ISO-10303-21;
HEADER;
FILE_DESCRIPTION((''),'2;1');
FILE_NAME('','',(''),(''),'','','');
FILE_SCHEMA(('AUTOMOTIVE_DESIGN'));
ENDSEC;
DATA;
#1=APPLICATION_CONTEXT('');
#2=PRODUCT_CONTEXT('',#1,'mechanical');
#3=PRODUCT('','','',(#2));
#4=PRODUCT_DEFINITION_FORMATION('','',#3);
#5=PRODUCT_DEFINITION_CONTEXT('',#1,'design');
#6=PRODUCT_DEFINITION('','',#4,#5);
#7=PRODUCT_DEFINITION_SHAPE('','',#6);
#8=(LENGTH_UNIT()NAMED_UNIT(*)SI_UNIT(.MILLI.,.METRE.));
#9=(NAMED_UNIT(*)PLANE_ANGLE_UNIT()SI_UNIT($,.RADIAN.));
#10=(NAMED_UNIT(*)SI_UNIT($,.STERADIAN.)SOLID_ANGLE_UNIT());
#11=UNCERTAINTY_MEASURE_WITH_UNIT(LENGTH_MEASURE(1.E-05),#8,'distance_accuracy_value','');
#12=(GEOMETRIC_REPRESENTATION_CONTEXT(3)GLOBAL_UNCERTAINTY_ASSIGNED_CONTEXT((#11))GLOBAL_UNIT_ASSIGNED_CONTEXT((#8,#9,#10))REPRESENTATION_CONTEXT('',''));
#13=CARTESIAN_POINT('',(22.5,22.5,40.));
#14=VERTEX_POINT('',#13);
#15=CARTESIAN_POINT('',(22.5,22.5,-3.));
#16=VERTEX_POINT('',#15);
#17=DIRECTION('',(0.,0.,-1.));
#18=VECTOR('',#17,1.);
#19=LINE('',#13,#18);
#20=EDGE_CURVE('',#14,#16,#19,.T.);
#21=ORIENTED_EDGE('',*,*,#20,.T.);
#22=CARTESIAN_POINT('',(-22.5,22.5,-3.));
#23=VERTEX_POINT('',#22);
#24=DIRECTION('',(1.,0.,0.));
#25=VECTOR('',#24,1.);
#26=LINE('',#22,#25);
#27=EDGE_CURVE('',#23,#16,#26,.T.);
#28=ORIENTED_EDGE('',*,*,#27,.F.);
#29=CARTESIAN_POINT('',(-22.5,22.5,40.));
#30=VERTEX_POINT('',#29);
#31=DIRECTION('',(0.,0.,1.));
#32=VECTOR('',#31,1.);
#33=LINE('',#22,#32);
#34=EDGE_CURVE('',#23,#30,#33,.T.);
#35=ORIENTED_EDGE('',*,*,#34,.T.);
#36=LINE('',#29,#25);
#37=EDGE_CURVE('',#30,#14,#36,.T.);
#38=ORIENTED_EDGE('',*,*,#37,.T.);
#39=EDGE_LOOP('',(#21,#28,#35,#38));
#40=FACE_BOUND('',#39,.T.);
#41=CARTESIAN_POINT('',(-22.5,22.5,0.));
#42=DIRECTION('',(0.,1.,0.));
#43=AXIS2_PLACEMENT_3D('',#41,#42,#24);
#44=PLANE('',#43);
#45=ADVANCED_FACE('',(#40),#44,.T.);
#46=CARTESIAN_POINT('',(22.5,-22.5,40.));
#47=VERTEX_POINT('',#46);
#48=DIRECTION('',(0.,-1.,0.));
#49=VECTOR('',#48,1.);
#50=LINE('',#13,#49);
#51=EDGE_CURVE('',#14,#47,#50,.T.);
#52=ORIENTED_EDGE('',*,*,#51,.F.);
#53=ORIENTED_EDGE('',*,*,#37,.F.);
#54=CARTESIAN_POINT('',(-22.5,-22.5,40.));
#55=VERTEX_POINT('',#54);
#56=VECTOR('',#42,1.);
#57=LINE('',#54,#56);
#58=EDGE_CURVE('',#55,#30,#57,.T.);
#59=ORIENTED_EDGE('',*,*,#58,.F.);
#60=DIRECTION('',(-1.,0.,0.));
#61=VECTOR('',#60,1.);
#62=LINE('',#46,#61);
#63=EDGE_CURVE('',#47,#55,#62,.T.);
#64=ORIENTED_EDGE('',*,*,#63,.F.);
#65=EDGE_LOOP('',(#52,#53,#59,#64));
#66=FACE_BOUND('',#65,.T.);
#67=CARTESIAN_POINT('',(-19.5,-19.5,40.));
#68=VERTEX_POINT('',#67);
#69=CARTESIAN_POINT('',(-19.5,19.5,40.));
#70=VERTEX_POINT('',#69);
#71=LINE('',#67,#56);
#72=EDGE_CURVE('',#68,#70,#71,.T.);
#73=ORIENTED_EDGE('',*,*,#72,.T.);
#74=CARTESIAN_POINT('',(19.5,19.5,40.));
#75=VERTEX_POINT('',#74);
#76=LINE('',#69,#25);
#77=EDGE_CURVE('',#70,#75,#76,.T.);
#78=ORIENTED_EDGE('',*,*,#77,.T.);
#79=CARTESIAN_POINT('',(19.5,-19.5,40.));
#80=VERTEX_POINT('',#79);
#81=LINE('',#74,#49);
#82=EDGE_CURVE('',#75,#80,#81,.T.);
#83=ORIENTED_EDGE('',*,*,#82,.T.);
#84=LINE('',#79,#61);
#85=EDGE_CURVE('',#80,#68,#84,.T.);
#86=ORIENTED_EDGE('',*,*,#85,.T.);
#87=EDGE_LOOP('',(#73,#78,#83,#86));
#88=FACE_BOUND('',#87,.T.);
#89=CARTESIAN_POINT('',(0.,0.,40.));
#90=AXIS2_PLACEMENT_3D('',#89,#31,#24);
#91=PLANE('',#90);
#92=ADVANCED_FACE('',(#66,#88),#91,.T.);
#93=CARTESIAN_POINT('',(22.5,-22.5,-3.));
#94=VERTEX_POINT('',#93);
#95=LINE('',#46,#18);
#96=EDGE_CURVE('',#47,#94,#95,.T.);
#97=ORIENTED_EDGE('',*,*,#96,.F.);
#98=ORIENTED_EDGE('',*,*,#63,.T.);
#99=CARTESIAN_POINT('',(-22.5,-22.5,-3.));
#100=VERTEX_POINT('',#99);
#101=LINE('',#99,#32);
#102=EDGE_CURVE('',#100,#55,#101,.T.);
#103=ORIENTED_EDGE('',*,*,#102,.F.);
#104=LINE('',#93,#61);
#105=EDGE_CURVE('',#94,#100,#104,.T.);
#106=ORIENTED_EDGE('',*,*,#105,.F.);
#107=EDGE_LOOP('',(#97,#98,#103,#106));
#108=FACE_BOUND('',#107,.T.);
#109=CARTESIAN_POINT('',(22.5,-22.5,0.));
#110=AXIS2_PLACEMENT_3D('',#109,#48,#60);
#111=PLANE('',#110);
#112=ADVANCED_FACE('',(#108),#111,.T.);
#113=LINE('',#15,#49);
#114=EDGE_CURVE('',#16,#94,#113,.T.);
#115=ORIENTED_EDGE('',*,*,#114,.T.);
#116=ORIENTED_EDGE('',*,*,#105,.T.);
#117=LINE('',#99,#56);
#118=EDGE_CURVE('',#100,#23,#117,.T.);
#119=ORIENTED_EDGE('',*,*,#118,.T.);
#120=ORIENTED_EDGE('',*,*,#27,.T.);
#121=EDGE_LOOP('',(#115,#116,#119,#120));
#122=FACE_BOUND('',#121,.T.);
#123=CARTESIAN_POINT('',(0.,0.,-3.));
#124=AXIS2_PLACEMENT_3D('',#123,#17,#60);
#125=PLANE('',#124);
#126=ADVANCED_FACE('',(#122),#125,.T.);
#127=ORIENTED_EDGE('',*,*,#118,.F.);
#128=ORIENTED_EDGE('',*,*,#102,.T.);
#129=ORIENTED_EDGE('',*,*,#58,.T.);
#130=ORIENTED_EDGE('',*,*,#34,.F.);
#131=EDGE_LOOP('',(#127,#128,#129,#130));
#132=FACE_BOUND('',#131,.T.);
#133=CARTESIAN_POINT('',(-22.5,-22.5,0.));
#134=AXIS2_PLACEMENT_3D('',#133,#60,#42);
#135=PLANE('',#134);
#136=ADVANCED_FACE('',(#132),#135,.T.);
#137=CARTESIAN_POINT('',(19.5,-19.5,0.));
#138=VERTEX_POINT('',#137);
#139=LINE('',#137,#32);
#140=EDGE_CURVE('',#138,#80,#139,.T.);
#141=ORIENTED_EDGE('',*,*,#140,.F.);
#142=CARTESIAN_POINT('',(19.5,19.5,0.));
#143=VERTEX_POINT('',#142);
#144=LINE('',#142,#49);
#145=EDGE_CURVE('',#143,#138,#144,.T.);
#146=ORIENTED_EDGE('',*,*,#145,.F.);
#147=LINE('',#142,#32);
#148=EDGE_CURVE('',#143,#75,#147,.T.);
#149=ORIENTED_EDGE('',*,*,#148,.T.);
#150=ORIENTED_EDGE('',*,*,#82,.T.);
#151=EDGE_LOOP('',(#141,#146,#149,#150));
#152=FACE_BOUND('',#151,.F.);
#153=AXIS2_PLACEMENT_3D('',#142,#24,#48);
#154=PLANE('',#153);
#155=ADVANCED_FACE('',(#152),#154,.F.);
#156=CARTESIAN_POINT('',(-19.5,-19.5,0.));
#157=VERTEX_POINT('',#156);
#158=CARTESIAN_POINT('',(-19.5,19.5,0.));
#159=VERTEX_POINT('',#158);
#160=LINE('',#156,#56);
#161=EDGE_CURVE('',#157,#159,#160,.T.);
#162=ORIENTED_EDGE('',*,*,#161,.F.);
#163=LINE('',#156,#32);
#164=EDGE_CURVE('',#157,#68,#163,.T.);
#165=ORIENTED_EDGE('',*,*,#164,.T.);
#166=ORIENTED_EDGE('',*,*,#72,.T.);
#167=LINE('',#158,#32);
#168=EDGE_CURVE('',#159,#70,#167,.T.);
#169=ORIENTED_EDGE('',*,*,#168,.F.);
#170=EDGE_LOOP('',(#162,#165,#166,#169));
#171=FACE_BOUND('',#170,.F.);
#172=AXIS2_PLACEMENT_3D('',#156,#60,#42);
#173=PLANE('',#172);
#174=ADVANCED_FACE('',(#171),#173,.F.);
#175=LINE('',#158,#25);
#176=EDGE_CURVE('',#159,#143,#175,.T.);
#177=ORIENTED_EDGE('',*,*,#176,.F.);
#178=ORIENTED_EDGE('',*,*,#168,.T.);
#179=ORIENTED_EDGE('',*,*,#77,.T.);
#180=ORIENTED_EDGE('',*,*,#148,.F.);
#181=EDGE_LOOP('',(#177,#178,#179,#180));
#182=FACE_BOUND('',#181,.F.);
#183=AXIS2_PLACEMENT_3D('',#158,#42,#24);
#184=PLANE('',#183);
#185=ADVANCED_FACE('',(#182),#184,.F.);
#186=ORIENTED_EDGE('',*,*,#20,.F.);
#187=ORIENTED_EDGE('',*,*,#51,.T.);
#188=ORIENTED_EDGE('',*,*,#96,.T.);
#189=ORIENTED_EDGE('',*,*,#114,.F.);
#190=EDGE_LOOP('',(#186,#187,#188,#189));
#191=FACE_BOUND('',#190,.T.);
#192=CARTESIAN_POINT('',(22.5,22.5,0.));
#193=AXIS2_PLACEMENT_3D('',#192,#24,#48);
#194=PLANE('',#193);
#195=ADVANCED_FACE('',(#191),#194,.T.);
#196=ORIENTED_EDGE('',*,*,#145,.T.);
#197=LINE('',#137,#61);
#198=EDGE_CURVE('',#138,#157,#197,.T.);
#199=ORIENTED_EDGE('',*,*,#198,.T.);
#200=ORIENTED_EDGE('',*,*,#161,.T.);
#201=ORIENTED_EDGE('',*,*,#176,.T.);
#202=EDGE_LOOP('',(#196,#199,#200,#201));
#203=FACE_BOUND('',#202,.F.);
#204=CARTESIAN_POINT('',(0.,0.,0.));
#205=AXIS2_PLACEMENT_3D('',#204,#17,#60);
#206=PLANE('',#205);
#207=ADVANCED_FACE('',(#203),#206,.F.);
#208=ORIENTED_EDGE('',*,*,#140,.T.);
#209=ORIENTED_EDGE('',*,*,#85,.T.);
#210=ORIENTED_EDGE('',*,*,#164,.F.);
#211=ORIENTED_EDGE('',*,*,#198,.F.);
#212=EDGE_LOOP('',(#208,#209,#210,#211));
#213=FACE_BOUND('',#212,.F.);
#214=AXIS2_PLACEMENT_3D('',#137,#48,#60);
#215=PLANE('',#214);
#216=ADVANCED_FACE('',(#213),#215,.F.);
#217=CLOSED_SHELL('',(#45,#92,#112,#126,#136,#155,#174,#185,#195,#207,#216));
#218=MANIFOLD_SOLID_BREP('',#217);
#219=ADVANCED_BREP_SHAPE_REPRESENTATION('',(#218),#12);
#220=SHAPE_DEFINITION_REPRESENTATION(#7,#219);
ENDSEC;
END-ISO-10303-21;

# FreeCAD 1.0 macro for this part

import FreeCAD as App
import Part
import Sketcher

V = App.Vector

doc = App.newDocument("Part")
body = doc.addObject("PartDesign::Body", "Body")

# Sketch on XY plane
sketch1 = body.newObject("Sketcher::SketchObject", "Sketch")
sketch1.AttachmentSupport = (doc.getObject("XY_Plane"), [""])
sketch1.MapMode = "FlatFace"
sketch1.addGeometry([
    Part.LineSegment(V(22, 22, 0), V(-22, 22, 0)),  # 0
    Part.LineSegment(V(-22, 22, 0), V(-22, -22, 0)),  # 1
    Part.LineSegment(V(-22, -22, 0), V(22, -22, 0)),  # 2
    Part.LineSegment(V(22, -22, 0), V(22, 22, 0)),  # 3
    Part.LineSegment(V(-20, -20, 0), V(-20, 20, 0)),  # 4
    Part.LineSegment(V(-20, 20, 0), V(20, 20, 0)),  # 5
    Part.LineSegment(V(20, 20, 0), V(20, -20, 0)),  # 6
    Part.LineSegment(V(20, -20, 0), V(-20, -20, 0)),  # 7
], False)
sketch1.addConstraint([
    Sketcher.Constraint("Coincident", 0, 2, 1, 1),
    Sketcher.Constraint("Coincident", 1, 2, 2, 1),
    Sketcher.Constraint("Coincident", 2, 2, 3, 1),
    Sketcher.Constraint("Coincident", 3, 2, 0, 1),
    Sketcher.Constraint("Coincident", 4, 2, 5, 1),
    Sketcher.Constraint("Coincident", 5, 2, 6, 1),
    Sketcher.Constraint("Coincident", 6, 2, 7, 1),
    Sketcher.Constraint("Coincident", 7, 2, 4, 1),
    Sketcher.Constraint("Horizontal", 0),
    Sketcher.Constraint("Vertical", 1),
    Sketcher.Constraint("Horizontal", 2),
    Sketcher.Constraint("Vertical", 3),
    Sketcher.Constraint("Vertical", 4),
    Sketcher.Constraint("Horizontal", 5),
    Sketcher.Constraint("Vertical", 6),
    Sketcher.Constraint("Horizontal", 7),
    Sketcher.Constraint("Symmetric", 0, 2, 2, 2, -1, 1),
    Sketcher.Constraint("Symmetric", 4, 2, 6, 2, -1, 1),
    Sketcher.Constraint("Equal", 2, 1),
    Sketcher.Constraint("Equal", 7, 4),
    Sketcher.Constraint("DistanceX", 5, 1, 5, 2, 39.0),
    Sketcher.Constraint("DistanceX", 0, 2, 4, 2, 3.0),
])
pad1 = body.newObject("PartDesign::Pad", "Pad")
pad1.Profile = sketch1
pad1.Length = 40

# Sketch on XY plane
sketch2 = body.newObject("Sketcher::SketchObject", "Sketch001")
sketch2.AttachmentSupport = (doc.getObject("XY_Plane"), [""])
sketch2.MapMode = "FlatFace"
sketch2.addGeometry([
    Part.LineSegment(V(22, 22, 0), V(22, -22, 0)),
    Part.LineSegment(V(22, -22, 0), V(-22, -22, 0)),
    Part.LineSegment(V(-22, -22, 0), V(-22, 22, 0)),
    Part.LineSegment(V(-22, 22, 0), V(22, 22, 0)),
], False)
sketch2.addConstraint([
    Sketcher.Constraint("Coincident", 0, 2, 1, 1),
    Sketcher.Constraint("Coincident", 1, 2, 2, 1),
    Sketcher.Constraint("Coincident", 2, 2, 3, 1),
    Sketcher.Constraint("Coincident", 3, 2, 0, 1),
    Sketcher.Constraint("Vertical", 0),
    Sketcher.Constraint("Horizontal", 1),
    Sketcher.Constraint("Vertical", 2),
    Sketcher.Constraint("Horizontal", 3),
    Sketcher.Constraint("Symmetric", 0, 2, 2, 2, -1, 1),
    Sketcher.Constraint("Equal", 3, 0),
    Sketcher.Constraint("DistanceX", 1, 2, 1, 1, 45.0),
])
pad2 = body.newObject("PartDesign::Pad", "Pad001")
pad2.Profile = sketch2
pad2.Length = 3
pad2.Reversed = True

doc.recompute()
